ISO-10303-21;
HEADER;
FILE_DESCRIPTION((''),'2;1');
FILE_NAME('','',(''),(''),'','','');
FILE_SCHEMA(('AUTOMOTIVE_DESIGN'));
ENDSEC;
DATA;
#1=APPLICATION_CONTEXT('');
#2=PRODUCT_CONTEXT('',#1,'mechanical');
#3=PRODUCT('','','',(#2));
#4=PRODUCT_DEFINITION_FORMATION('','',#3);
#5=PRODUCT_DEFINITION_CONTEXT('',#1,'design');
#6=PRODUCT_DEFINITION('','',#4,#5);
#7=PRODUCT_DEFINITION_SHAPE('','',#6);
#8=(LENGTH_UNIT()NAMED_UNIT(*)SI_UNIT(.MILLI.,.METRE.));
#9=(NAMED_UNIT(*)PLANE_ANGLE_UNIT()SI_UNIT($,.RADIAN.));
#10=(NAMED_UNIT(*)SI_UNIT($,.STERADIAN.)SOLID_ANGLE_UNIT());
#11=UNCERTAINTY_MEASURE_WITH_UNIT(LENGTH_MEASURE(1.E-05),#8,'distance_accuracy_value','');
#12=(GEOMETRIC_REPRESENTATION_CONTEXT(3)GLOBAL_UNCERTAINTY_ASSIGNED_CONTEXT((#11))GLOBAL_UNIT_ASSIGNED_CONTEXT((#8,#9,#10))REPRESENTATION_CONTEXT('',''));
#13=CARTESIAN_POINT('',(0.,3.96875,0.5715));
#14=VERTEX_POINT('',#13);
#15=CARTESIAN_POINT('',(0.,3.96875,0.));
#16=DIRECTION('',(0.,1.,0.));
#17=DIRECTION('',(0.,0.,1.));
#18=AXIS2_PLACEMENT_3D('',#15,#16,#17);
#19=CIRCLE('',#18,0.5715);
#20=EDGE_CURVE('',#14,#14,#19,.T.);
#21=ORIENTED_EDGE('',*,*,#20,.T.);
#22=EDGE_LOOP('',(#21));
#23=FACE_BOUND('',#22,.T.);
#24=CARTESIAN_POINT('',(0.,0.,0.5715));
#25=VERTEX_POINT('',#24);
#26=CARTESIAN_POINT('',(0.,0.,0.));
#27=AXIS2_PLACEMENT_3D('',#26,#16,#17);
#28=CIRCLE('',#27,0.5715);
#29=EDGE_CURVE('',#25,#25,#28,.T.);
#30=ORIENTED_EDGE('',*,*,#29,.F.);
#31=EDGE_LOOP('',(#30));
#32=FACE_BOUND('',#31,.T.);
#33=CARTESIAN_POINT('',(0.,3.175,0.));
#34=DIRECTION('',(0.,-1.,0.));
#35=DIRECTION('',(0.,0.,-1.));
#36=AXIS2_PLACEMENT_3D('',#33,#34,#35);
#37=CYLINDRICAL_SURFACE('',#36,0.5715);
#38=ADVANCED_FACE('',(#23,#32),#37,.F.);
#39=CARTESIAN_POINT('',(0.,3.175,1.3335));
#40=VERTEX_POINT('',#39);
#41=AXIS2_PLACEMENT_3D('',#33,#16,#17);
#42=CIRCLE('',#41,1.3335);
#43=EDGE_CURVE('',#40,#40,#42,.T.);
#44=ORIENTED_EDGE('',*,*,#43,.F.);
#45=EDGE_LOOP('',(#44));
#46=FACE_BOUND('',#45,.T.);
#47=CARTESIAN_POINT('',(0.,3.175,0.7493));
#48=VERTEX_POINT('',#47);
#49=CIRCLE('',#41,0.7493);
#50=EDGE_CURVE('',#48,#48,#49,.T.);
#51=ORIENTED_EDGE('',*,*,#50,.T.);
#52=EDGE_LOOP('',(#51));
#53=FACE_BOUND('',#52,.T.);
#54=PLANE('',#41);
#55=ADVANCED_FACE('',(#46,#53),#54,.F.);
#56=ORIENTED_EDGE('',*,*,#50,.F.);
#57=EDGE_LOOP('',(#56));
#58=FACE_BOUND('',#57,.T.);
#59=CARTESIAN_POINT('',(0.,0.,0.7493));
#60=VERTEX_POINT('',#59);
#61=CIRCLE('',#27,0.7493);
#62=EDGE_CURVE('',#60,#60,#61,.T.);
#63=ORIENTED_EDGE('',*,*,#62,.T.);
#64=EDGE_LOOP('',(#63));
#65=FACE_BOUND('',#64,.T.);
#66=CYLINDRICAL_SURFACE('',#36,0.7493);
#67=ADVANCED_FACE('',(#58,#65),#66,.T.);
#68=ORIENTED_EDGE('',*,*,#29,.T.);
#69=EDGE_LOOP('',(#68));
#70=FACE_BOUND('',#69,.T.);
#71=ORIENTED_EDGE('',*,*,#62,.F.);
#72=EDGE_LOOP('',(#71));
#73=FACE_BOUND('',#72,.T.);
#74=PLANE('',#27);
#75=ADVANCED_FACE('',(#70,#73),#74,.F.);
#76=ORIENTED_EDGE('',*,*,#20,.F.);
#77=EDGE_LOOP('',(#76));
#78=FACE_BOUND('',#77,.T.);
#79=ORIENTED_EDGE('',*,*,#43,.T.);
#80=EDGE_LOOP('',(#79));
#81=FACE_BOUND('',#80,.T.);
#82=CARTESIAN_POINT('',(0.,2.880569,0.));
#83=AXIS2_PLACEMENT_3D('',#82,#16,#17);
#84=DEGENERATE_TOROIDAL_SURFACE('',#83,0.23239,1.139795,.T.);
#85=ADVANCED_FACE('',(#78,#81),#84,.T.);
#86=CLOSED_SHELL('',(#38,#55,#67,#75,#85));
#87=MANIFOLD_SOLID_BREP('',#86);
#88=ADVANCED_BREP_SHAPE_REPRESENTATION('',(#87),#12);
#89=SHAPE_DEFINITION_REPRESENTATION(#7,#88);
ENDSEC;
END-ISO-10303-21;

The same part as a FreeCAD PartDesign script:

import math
import FreeCAD as App
import Part
import Sketcher
Q = App.Units.Quantity

doc = App.newDocument("Part")
body = doc.addObject("PartDesign::Body", "Body")

sketch1 = doc.addObject("Sketcher::SketchObject", "Sketch")
body.addObject(sketch1)
sketch1.AttachmentSupport = (doc.XZ_Plane, [""])
sketch1.MapMode = "FlatFace"
sketch1.addGeometry(Part.Circle(App.Vector(0, 0, 0), App.Vector(0, 0, 1), 0.7), False)
sketch1.addGeometry(Part.Circle(App.Vector(0, 0, 0), App.Vector(0, 0, 1), 0.6), False)
sketch1.addConstraint(Sketcher.Constraint("Coincident", 0, 3, -1, 1))
sketch1.addConstraint(Sketcher.Constraint("Coincident", 1, 3, -1, 1))
sketch1.addConstraint(Sketcher.Constraint("Diameter", 0, Q("0.059 in")))
sketch1.addConstraint(Sketcher.Constraint("Diameter", 1, Q("0.045 in")))
pad1 = doc.addObject("PartDesign::Pad", "Pad")
body.addObject(pad1)
pad1.Profile = sketch1
pad1.Length = Q("0.125 in")
pad1.Reversed = True

sketch2 = doc.addObject("Sketcher::SketchObject", "Sketch001")
body.addObject(sketch2)
sketch2.AttachmentSupport = (doc.XZ_Plane, [""])
sketch2.MapMode = "FlatFace"
sketch2.AttachmentOffset = App.Placement(App.Vector(0, 0, -0.125 * 25.4), App.Rotation())
sketch2.addGeometry(Part.Circle(App.Vector(0, 0, 0), App.Vector(0, 0, 1), 1.3), False)
sketch2.addGeometry(Part.Circle(App.Vector(0, 0, 0), App.Vector(0, 0, 1), 0.6), False)
sketch2.addConstraint(Sketcher.Constraint("Coincident", 0, 3, -1, 1))
sketch2.addConstraint(Sketcher.Constraint("Coincident", 1, 3, -1, 1))
sketch2.addConstraint(Sketcher.Constraint("Diameter", 0, Q("0.105 in")))
sketch2.addConstraint(Sketcher.Constraint("Diameter", 1, Q("0.045 in")))
pad2 = doc.addObject("PartDesign::Pad", "Pad001")
body.addObject(pad2)
pad2.Profile = sketch2
pad2.Length = Q("0.03125 in")
pad2.Reversed = True

sketch3 = doc.addObject("Sketcher::SketchObject", "Sketch002")
body.addObject(sketch3)
sketch3.AttachmentSupport = (doc.YZ_Plane, [""])
sketch3.MapMode = "FlatFace"
sketch3.addGeometry(Part.LineSegment(App.Vector(4, 1.3, 0), App.Vector(3.2, 1.3, 0)), False)
sketch3.addGeometry(Part.ArcOfCircle(Part.Circle(App.Vector(2.9, 0.2, 0), App.Vector(0, 0, 1), 1.1), math.radians(17), math.radians(75)), False)
sketch3.addGeometry(Part.LineSegment(App.Vector(4, 0.6, 0), App.Vector(4, 1.3, 0)), False)
sketch3.addConstraint(Sketcher.Constraint("Coincident", 0, 2, 1, 2))
sketch3.addConstraint(Sketcher.Constraint("Coincident", 1, 1, 2, 1))
sketch3.addConstraint(Sketcher.Constraint("Coincident", 2, 2, 0, 1))
sketch3.addConstraint(Sketcher.Constraint("Horizontal", 0))
sketch3.addConstraint(Sketcher.Constraint("Vertical", 2))
sketch3.addConstraint(Sketcher.Constraint("DistanceY", 2, 1, 2, 2, Q("0.03 in")))
sketch3.addConstraint(Sketcher.Constraint("DistanceX", 0, 2, 0, 1, Q("0.03125 in")))
sketch3.addConstraint(Sketcher.Constraint("DistanceX", -1, 1, 0, 2, Q("0.125 in")))
sketch3.addConstraint(Sketcher.Constraint("DistanceY", -1, 1, 0, 2, Q("0.0525 in")))
sketch3.addConstraint(Sketcher.Constraint("Radius", 1, Q("1.139795 mm")))
groove = doc.addObject("PartDesign::Groove", "Groove")
body.addObject(groove)
groove.Profile = sketch3
groove.ReferenceAxis = (sketch3, ["H_Axis"])
groove.Angle = 360

doc.recompute()
